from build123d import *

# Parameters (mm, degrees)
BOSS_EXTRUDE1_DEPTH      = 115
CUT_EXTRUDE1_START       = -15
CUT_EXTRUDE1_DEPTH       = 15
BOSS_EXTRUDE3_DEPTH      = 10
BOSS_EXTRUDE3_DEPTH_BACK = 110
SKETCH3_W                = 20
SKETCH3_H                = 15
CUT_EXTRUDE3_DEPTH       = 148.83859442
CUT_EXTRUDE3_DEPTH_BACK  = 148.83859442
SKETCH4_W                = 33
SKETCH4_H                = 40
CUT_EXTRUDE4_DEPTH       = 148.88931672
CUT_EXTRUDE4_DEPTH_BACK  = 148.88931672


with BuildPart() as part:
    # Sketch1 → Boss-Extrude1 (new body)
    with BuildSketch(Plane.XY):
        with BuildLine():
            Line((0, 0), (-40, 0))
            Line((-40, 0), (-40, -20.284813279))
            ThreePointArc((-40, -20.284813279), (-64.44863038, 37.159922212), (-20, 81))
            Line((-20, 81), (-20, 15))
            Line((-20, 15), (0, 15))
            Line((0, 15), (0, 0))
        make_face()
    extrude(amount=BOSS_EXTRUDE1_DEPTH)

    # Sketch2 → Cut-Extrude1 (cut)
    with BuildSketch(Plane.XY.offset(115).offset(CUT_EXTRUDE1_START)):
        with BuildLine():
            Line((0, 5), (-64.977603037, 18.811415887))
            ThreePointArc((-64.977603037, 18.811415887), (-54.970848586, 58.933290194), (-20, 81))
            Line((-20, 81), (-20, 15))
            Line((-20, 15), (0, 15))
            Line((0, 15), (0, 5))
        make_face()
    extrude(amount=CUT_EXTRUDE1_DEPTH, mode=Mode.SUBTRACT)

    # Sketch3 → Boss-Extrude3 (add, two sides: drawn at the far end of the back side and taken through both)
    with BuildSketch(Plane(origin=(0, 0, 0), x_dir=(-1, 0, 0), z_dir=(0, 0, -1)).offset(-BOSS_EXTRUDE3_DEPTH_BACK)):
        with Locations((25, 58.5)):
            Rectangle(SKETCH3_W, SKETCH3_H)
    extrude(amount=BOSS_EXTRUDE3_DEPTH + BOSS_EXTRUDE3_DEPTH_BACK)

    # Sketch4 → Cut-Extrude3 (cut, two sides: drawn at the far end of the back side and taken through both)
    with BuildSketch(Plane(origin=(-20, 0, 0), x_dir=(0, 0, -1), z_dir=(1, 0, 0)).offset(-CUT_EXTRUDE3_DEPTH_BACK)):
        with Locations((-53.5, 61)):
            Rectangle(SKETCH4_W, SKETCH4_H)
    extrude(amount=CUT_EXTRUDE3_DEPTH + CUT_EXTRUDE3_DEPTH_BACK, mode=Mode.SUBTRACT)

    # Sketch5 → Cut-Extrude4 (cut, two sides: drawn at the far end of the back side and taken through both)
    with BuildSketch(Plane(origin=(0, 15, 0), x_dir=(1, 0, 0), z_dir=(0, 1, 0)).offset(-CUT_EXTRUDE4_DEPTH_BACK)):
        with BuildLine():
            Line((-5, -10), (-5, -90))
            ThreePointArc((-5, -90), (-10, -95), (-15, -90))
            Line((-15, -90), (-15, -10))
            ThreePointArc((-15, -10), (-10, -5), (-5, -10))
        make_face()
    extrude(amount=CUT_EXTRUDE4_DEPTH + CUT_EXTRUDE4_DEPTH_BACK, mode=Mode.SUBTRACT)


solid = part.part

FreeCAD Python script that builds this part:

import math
import FreeCAD as App
import Part
import Sketcher
from FreeCAD import Vector
Q = App.Units.Quantity


def add_polygon(sketch, points):
    """Adds a closed chain of lines whose ends are joined by coincident constraints."""
    first, n = sketch.GeometryCount, len(points)
    for a, b in zip(points, points[1:] + points[:1]):
        sketch.addGeometry(Part.LineSegment(App.Vector(*a, 0), App.Vector(*b, 0)), False)
    for i in range(n):
        sketch.addConstraint(Sketcher.Constraint("Coincident", first + i, 2, first + (i + 1) % n, 1))

doc = App.newDocument("Part")
body = doc.addObject("PartDesign::Body", "Body")

# Sketch on XY plane
sketch1 = body.newObject("Sketcher::SketchObject", "Sketch")
sketch1.AttachmentSupport = (doc.getObject("XY_Plane"), [""])
sketch1.MapMode = "FlatFace"
sketch1.addGeometry([
    Part.LineSegment(Vector(-40, 0, 0), Vector(0, 0, 0)),  # 0
    Part.LineSegment(Vector(0, 0, 0), Vector(0, 15, 0)),  # 1
    Part.LineSegment(Vector(0, 15, 0), Vector(-20, 15, 0)),  # 2
    Part.LineSegment(Vector(-20, 15, 0), Vector(-20, 81, 0)),  # 3
    Part.ArcOfCircle(Part.Circle(Vector(-10, 26, 0), Vector(0, 0, 1), 56), math.radians(100), math.radians(237)),  # 4
    Part.LineSegment(Vector(-40, -20, 0), Vector(-40, 0, 0)),  # 5
], False)
sketch1.addConstraint([
    Sketcher.Constraint("Coincident", 0, 2, 1, 1),
    Sketcher.Constraint("Coincident", 1, 2, 2, 1),
    Sketcher.Constraint("Coincident", 2, 2, 3, 1),
    Sketcher.Constraint("Coincident", 3, 2, 4, 1),
    Sketcher.Constraint("Coincident", 4, 2, 5, 1),
    Sketcher.Constraint("Coincident", 5, 2, 0, 1),
    Sketcher.Constraint("Horizontal", 0),
    Sketcher.Constraint("Vertical", 1),
    Sketcher.Constraint("Horizontal", 2),
    Sketcher.Constraint("Vertical", 3),
    Sketcher.Constraint("Vertical", 5),
    Sketcher.Constraint("Coincident", 0, 2, -1, 1),
    Sketcher.Constraint("Radius", 4, 55.5),
    Sketcher.Constraint("DistanceX", 0, 1, 0, 2, 40.0),
    Sketcher.Constraint("DistanceX", 2, 2, 2, 1, 20.0),
    Sketcher.Constraint("DistanceY", 1, 1, 1, 2, 15.0),
    Sketcher.Constraint("DistanceY", 3, 1, 3, 2, 66.0),
    Sketcher.Constraint("DistanceX", 4, 3, -1, 1, 10.0),
])
pad1 = body.newObject("PartDesign::Pad", "Pad")
pad1.Profile = sketch1
pad1.Length = 115

# Sketch on XY plane
sketch2 = body.newObject("Sketcher::SketchObject", "Sketch001")
sketch2.AttachmentSupport = (doc.getObject("XY_Plane"), [""])
sketch2.MapMode = "FlatFace"
sketch2.AttachmentOffset = App.Placement(Vector(0, 0, 100), App.Rotation())
sketch2.addGeometry([
    Part.LineSegment(Vector(-65, 19, 0), Vector(0, 5, 0)),  # 0
    Part.LineSegment(Vector(0, 5, 0), Vector(0, 15, 0)),  # 1
    Part.LineSegment(Vector(0, 15, 0), Vector(-20, 15, 0)),  # 2
    Part.LineSegment(Vector(-20, 15, 0), Vector(-20, 81, 0)),  # 3
    Part.ArcOfCircle(Part.Circle(Vector(-10, 26, 0), Vector(0, 0, 1), 56), math.radians(100), math.radians(188)),  # 4
], False)
sketch2.addConstraint([
    Sketcher.Constraint("Coincident", 0, 2, 1, 1),
    Sketcher.Constraint("Coincident", 1, 2, 2, 1),
    Sketcher.Constraint("Coincident", 2, 2, 3, 1),
    Sketcher.Constraint("Coincident", 3, 2, 4, 1),
    Sketcher.Constraint("Coincident", 4, 2, 0, 1),
    Sketcher.Constraint("Vertical", 1),
    Sketcher.Constraint("Horizontal", 2),
    Sketcher.Constraint("Vertical", 3),
    Sketcher.Constraint("PointOnObject", 0, 2, -2),
    Sketcher.Constraint("Radius", 4, 55.5),
    Sketcher.Constraint("DistanceX", 2, 2, 2, 1, 20.0),
    Sketcher.Constraint("DistanceY", 1, 1, 1, 2, 10.0),
    Sketcher.Constraint("DistanceY", 3, 1, 3, 2, 66.0),
    Sketcher.Constraint("Angle", 0, Q("-12 deg")),
    Sketcher.Constraint("DistanceX", 4, 3, -1, 1, 10.0),
    Sketcher.Constraint("DistanceY", -1, 1, 0, 2, 5.0),
])
pocket1 = body.newObject("PartDesign::Pocket", "Pocket")
pocket1.Profile = sketch2
pocket1.Length = 15
pocket1.Reversed = True

# Sketch on XY plane
sketch3 = body.newObject("Sketcher::SketchObject", "Sketch002")
sketch3.AttachmentSupport = (doc.getObject("XY_Plane"), [""])
sketch3.MapMode = "FlatFace"
add_polygon(sketch3, [(-15, 66), (-15, 51), (-35, 51), (-35, 66)])  # lines 0-3
sketch3.addConstraint([
    Sketcher.Constraint("Vertical", 0),
    Sketcher.Constraint("Horizontal", 1),
    Sketcher.Constraint("Vertical", 2),
    Sketcher.Constraint("Horizontal", 3),
    Sketcher.Constraint("DistanceX", 1, 2, 1, 1, 20.0),
    Sketcher.Constraint("DistanceY", 0, 2, 0, 1, 15.0),
    Sketcher.Constraint("DistanceX", 0, 2, -1, 1, 15.0),
    Sketcher.Constraint("DistanceY", -1, 1, 0, 2, 51.0),
])
pad2 = body.newObject("PartDesign::Pad", "Pad001")
pad2.Profile = sketch3
pad2.Type = "TwoLengths"
pad2.Length = 10
pad2.Length2 = 110
pad2.Reversed = True

# Sketch on YZ plane
sketch4 = body.newObject("Sketcher::SketchObject", "Sketch003")
sketch4.AttachmentSupport = (doc.getObject("YZ_Plane"), [""])
sketch4.MapMode = "FlatFace"
sketch4.AttachmentOffset = App.Placement(Vector(0, 0, -20), App.Rotation())
add_polygon(sketch4, [(81, 70), (41, 70), (41, 37), (81, 37)])  # lines 0-3
sketch4.addConstraint([
    Sketcher.Constraint("Horizontal", 0),
    Sketcher.Constraint("Vertical", 1),
    Sketcher.Constraint("Horizontal", 2),
    Sketcher.Constraint("Vertical", 3),
    Sketcher.Constraint("DistanceX", 0, 2, 0, 1, 40.0),
    Sketcher.Constraint("DistanceY", 1, 2, 1, 1, 33.0),
    Sketcher.Constraint("DistanceX", -1, 1, 0, 2, 41.0),
    Sketcher.Constraint("DistanceY", -1, 1, 0, 2, 70.0),
])
pocket2 = body.newObject("PartDesign::Pocket", "Pocket001")
pocket2.Profile = sketch4
pocket2.Type = "ThroughAll"
pocket2.Midplane = True

# Sketch on XZ plane
sketch5 = body.newObject("Sketcher::SketchObject", "Sketch004")
sketch5.AttachmentSupport = (doc.getObject("XZ_Plane"), [""])
sketch5.MapMode = "FlatFace"
sketch5.AttachmentOffset = App.Placement(Vector(0, 0, -15), App.Rotation())
sketch5.addGeometry([
    Part.LineSegment(Vector(-5, 90, 0), Vector(-5, 10, 0)),
    Part.ArcOfCircle(Part.Circle(Vector(-10, 10, 0), Vector(0, 0, 1), 5), math.radians(180), math.radians(360)),
    Part.LineSegment(Vector(-15, 10, 0), Vector(-15, 90, 0)),
    Part.ArcOfCircle(Part.Circle(Vector(-10, 90, 0), Vector(0, 0, 1), 5), math.radians(0), math.radians(180)),
], False)
sketch5.addConstraint([
    Sketcher.Constraint("Tangent", 0, 2, 1, 2),
    Sketcher.Constraint("Tangent", 1, 1, 2, 1),
    Sketcher.Constraint("Tangent", 2, 2, 3, 2),
    Sketcher.Constraint("Tangent", 3, 1, 0, 1),
    Sketcher.Constraint("Vertical", 0),
    Sketcher.Constraint("Vertical", 2),
    Sketcher.Constraint("Radius", 1, 5.0),
    Sketcher.Constraint("DistanceY", 0, 2, 0, 1, 80.0),
    Sketcher.Constraint("DistanceX", 1, 3, -1, 1, 10.0),
    Sketcher.Constraint("DistanceY", -1, 1, 1, 3, 10.0),
])
pocket3 = body.newObject("PartDesign::Pocket", "Pocket002")
pocket3.Profile = sketch5
pocket3.Type = "ThroughAll"
pocket3.Midplane = True

doc.recompute()
